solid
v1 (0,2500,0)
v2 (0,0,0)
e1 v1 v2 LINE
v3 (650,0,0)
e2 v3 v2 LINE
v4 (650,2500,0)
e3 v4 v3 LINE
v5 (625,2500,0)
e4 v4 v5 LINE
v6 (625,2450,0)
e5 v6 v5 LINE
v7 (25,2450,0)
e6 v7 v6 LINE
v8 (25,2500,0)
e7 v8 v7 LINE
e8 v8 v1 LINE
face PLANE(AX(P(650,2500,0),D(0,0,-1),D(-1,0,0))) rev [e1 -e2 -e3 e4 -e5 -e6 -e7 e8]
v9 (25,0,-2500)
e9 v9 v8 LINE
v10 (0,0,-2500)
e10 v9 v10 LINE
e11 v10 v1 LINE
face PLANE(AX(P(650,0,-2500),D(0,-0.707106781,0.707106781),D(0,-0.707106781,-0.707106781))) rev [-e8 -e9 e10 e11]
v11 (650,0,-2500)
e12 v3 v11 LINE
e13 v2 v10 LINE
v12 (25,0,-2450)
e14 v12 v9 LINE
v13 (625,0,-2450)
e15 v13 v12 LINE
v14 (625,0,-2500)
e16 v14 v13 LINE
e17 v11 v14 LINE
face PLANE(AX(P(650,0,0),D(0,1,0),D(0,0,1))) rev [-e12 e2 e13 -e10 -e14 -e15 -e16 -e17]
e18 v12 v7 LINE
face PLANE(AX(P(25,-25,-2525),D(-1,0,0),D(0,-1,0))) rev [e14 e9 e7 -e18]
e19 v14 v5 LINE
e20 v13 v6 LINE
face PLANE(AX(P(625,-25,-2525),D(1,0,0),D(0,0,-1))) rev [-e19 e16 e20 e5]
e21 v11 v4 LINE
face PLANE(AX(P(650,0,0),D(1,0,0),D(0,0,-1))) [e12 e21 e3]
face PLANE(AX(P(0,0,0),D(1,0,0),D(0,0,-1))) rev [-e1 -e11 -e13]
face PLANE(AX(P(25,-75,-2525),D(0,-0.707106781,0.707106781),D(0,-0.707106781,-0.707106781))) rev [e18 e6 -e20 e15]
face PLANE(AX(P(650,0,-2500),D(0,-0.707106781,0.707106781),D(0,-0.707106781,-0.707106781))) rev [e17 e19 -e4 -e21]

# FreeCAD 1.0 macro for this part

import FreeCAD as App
import Part
import Sketcher
Q = App.Units.Quantity

doc = App.newDocument("Part")
body = doc.addObject("PartDesign::Body", "Body")

# Sketch on YZ plane
sketch1 = doc.addObject("Sketcher::SketchObject", "Sketch")
body.addObject(sketch1)
sketch1.AttachmentSupport = (doc.YZ_Plane, [""])
sketch1.MapMode = "FlatFace"
sketch1.addGeometry(Part.LineSegment(App.Vector(0, 0, 0), App.Vector(0, -2500, 0)), False)
sketch1.addGeometry(Part.LineSegment(App.Vector(0, -2500, 0), App.Vector(2500, 0, 0)), False)
sketch1.addGeometry(Part.LineSegment(App.Vector(2500, 0, 0), App.Vector(0, 0, 0)), False)
sketch1.addConstraint(Sketcher.Constraint("Coincident", 0, 2, 1, 1))
sketch1.addConstraint(Sketcher.Constraint("Coincident", 1, 2, 2, 1))
sketch1.addConstraint(Sketcher.Constraint("Coincident", 2, 2, 0, 1))
sketch1.addConstraint(Sketcher.Constraint("Vertical", 0))
sketch1.addConstraint(Sketcher.Constraint("Horizontal", 2))
sketch1.addConstraint(Sketcher.Constraint("Coincident", 2, 2, -1, 1))
sketch1.addConstraint(Sketcher.Constraint("Equal", 2, 0))
sketch1.addConstraint(Sketcher.Constraint("DistanceX", 2, 2, 2, 1, Q("2500 mm")))
pad1 = doc.addObject("PartDesign::Pad", "Pad")
body.addObject(pad1)
pad1.Profile = sketch1
pad1.Length = 650

# Sketch on XY plane
sketch2 = doc.addObject("Sketcher::SketchObject", "Sketch001")
body.addObject(sketch2)
sketch2.AttachmentSupport = (doc.XY_Plane, [""])
sketch2.MapMode = "FlatFace"
sketch2.addGeometry(Part.LineSegment(App.Vector(25, 2500, 0), App.Vector(25, 2450, 0)), False)
sketch2.addGeometry(Part.LineSegment(App.Vector(25, 2450, 0), App.Vector(625, 2450, 0)), False)
sketch2.addGeometry(Part.LineSegment(App.Vector(625, 2450, 0), App.Vector(625, 2500, 0)), False)
sketch2.addGeometry(Part.LineSegment(App.Vector(625, 2500, 0), App.Vector(25, 2500, 0)), False)
sketch2.addConstraint(Sketcher.Constraint("Coincident", 0, 2, 1, 1))
sketch2.addConstraint(Sketcher.Constraint("Coincident", 1, 2, 2, 1))
sketch2.addConstraint(Sketcher.Constraint("Coincident", 2, 2, 3, 1))
sketch2.addConstraint(Sketcher.Constraint("Coincident", 3, 2, 0, 1))
sketch2.addConstraint(Sketcher.Constraint("Vertical", 0))
sketch2.addConstraint(Sketcher.Constraint("Horizontal", 1))
sketch2.addConstraint(Sketcher.Constraint("Vertical", 2))
sketch2.addConstraint(Sketcher.Constraint("Horizontal", 3))
sketch2.addConstraint(Sketcher.Constraint("DistanceX", 1, 1, 1, 2, Q("600 mm")))
sketch2.addConstraint(Sketcher.Constraint("DistanceY", 0, 2, 0, 1, Q("50 mm")))
sketch2.addConstraint(Sketcher.Constraint("DistanceX", -1, 1, 0, 2, Q("25 mm")))
sketch2.addConstraint(Sketcher.Constraint("DistanceY", -1, 1, 0, 2, Q("2450 mm")))

# Sketch on an angled plane
sketch3 = doc.addObject("Sketcher::SketchObject", "Sketch002")
body.addObject(sketch3)
sketch3.Placement = App.Placement(App.Vector(0, 1250, -1250), App.Rotation(App.Vector(0, 0.707106781, 0.707106781), App.Vector(0.999999999, 0, 0), App.Vector(0, 0.707106781, -0.707106781), "ZXY"))
sketch3.addGeometry(Part.LineSegment(App.Vector(-1768, 0, 0), App.Vector(1768, 0, 0)), False)
sketch3.addConstraint(Sketcher.Constraint("Horizontal", 0))
sketch3.addConstraint(Sketcher.Constraint("Symmetric", 0, 1, 0, 2, -1, 1))
sketch3.addConstraint(Sketcher.Constraint("DistanceX", 0, 1, 0, 2, Q("3535.533904 mm")))
doc.recompute()

subtractivepipe = doc.addObject("PartDesign::SubtractivePipe", "SubtractivePipe")
body.addObject(subtractivepipe)
subtractivepipe.Profile = sketch2
subtractivepipe.Spine = (sketch3, ["Edge1"])

doc.recompute()
